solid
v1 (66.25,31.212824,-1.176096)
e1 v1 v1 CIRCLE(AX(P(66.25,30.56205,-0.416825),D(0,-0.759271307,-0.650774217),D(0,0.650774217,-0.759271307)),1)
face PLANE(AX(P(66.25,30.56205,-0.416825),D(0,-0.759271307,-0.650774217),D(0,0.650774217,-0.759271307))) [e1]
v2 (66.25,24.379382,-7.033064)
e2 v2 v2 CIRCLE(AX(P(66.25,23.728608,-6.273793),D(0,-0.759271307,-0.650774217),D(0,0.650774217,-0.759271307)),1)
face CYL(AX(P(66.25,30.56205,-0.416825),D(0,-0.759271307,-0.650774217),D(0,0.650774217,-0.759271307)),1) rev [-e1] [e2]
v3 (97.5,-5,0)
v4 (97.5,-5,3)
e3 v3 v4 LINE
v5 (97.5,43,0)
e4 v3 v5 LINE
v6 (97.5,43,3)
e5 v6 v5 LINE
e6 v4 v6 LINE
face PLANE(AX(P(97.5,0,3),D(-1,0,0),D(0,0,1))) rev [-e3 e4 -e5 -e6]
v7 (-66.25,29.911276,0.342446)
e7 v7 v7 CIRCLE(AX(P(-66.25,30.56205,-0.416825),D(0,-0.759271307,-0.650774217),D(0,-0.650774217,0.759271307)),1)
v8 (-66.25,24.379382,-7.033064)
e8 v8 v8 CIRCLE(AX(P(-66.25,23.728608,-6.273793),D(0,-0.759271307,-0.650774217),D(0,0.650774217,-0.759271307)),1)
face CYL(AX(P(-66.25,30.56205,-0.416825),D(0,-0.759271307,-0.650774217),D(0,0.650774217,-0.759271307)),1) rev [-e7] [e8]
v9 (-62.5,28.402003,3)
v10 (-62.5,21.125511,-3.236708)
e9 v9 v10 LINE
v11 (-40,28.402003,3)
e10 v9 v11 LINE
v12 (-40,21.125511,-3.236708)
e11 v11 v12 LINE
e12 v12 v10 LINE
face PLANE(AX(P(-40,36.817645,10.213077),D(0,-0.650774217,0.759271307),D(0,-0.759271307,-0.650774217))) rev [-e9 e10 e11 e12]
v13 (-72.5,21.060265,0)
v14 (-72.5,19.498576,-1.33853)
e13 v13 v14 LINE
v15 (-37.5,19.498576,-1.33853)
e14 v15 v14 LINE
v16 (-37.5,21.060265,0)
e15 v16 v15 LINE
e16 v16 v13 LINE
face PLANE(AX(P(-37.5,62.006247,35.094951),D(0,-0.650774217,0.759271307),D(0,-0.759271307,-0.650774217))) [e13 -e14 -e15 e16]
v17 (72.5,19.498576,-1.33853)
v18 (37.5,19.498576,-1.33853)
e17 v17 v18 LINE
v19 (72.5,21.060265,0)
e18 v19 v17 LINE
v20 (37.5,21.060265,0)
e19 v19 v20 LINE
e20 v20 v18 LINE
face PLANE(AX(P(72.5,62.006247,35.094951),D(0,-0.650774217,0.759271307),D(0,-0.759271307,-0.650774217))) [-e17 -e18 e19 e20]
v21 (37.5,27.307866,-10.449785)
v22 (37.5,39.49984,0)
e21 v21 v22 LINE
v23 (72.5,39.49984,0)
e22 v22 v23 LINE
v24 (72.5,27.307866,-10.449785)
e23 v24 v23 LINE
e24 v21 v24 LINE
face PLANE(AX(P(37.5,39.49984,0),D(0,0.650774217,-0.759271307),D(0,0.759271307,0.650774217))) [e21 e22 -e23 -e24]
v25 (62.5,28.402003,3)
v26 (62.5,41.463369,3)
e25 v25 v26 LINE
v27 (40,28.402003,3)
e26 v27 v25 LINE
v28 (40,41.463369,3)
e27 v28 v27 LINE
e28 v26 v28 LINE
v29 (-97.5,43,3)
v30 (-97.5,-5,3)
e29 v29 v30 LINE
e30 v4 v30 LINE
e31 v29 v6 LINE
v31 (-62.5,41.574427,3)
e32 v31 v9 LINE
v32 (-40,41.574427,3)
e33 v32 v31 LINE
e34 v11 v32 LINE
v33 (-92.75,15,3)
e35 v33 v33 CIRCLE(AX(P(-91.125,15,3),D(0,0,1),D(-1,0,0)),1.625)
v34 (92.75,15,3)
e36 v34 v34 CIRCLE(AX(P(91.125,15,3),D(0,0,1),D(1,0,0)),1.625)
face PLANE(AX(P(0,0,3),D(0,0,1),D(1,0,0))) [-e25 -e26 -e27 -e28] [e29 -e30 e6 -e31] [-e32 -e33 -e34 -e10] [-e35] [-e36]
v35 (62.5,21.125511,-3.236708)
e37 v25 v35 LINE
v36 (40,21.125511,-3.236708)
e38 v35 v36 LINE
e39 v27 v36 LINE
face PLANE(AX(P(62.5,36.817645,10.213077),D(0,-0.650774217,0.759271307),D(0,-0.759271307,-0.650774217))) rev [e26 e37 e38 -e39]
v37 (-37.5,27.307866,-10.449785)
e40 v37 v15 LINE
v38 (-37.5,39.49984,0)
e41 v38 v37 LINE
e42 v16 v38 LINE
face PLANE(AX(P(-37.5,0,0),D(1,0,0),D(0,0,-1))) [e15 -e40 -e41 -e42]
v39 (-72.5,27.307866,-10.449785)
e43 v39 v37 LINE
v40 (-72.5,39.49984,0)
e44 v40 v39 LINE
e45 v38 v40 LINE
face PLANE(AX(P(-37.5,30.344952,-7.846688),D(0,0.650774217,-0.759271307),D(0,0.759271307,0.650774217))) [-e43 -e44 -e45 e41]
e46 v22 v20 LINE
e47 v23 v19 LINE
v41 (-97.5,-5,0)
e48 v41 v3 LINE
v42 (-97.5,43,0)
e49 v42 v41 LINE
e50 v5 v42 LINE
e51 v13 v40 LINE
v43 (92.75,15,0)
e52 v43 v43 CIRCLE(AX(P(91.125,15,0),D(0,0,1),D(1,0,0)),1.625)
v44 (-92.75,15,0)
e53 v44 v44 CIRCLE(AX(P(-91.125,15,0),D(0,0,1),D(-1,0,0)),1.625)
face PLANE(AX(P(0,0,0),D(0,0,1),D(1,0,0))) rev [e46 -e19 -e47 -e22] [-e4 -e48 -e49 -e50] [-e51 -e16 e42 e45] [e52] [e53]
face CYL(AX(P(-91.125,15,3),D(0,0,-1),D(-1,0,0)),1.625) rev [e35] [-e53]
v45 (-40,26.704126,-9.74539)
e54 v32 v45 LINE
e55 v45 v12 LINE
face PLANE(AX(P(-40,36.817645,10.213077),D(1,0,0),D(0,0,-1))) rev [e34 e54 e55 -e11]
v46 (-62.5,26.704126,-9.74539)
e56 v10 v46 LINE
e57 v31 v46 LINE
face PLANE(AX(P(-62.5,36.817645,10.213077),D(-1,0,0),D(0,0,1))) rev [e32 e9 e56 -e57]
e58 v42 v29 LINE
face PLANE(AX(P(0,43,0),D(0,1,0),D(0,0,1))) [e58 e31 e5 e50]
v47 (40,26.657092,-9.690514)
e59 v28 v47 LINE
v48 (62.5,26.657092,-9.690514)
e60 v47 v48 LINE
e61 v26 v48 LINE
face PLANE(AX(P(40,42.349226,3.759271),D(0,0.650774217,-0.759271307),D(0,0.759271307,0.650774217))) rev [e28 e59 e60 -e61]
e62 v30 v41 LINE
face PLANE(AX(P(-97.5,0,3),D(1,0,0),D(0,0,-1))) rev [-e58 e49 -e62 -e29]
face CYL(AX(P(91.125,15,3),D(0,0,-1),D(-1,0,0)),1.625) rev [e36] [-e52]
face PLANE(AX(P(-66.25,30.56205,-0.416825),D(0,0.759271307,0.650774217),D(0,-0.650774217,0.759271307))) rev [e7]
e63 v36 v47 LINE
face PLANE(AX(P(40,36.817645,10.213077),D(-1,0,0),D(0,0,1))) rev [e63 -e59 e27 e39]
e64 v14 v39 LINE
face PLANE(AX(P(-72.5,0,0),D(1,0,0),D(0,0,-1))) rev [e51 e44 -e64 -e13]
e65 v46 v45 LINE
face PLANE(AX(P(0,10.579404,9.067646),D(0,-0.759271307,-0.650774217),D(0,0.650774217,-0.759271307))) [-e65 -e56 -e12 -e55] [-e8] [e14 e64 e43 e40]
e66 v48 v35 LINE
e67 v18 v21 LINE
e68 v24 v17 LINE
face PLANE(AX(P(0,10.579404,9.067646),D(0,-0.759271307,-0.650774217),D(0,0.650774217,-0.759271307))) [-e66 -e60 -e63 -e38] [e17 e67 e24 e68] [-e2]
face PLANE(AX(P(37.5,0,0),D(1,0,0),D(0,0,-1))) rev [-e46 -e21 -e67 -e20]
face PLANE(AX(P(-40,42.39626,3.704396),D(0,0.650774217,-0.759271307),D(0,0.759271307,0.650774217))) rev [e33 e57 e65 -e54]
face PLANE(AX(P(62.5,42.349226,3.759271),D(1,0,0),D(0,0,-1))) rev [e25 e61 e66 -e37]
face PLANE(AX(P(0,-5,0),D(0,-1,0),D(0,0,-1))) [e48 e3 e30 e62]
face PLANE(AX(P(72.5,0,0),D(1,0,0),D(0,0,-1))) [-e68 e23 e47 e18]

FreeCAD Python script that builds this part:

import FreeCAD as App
import Part
import Sketcher
Q = App.Units.Quantity


def add_polygon(sketch, points):
    """Adds a closed chain of lines whose ends are joined by coincident constraints."""
    first, n = sketch.GeometryCount, len(points)
    for a, b in zip(points, points[1:] + points[:1]):
        sketch.addGeometry(Part.LineSegment(App.Vector(*a, 0), App.Vector(*b, 0)), False)
    for i in range(n):
        sketch.addConstraint(Sketcher.Constraint("Coincident", first + i, 2, first + (i + 1) % n, 1))

doc = App.newDocument("Part")
body = doc.addObject("PartDesign::Body", "Body")

# Sketch on XY plane
sketch1 = body.newObject("Sketcher::SketchObject", "Sketch")
sketch1.AttachmentSupport = (doc.getObject("XY_Plane"), [""])
sketch1.MapMode = "FlatFace"
add_polygon(sketch1, [(-97.5, 38), (-97.5, 0), (97.5, 0), (97.5, 38)])  # lines 0-3
sketch1.addGeometry(Part.Circle(App.Vector(-91.125, 15, 0), App.Vector(0, 0, 1), 1.625), False)  # 4
sketch1.addGeometry(Part.Circle(App.Vector(91.125, 15, 0), App.Vector(0, 0, 1), 1.625), False)  # 5
sketch1.addConstraint([
    Sketcher.Constraint("Vertical", 0),
    Sketcher.Constraint("Horizontal", 1),
    Sketcher.Constraint("Vertical", 2),
    Sketcher.Constraint("Horizontal", 3),
    Sketcher.Constraint("Equal", 4, 5),
    Sketcher.Constraint("Symmetric", 0, 2, 1, 2, -1, 1),
    Sketcher.Constraint("Symmetric", 4, 3, 5, 3, -2),
    Sketcher.Constraint("Diameter", 4, 3.25),
    Sketcher.Constraint("DistanceX", 1, 1, 1, 2, 195.0),
    Sketcher.Constraint("DistanceY", 0, 2, 0, 1, 38.0),
    Sketcher.Constraint("DistanceY", -1, 1, 4, 3, 15.0),
    Sketcher.Constraint("DistanceX", 4, 3, 5, 3, 182.25),
])
pad1 = body.newObject("PartDesign::Pad", "Pad")
pad1.Profile = sketch1
pad1.Length = 3

# Sketch on XZ plane
sketch2 = body.newObject("Sketcher::SketchObject", "Sketch001")
sketch2.AttachmentSupport = (doc.getObject("XZ_Plane"), [""])
sketch2.MapMode = "FlatFace"
add_polygon(sketch2, [(-97.5, 3), (-97.5, 0), (97.5, 0), (97.5, 3)])  # lines 0-3
sketch2.addConstraint([
    Sketcher.Constraint("Vertical", 0),
    Sketcher.Constraint("Horizontal", 1),
    Sketcher.Constraint("Vertical", 2),
    Sketcher.Constraint("Horizontal", 3),
    Sketcher.Constraint("Symmetric", 0, 2, 1, 2, -1, 1),
    Sketcher.Constraint("DistanceX", 1, 1, 1, 2, 195.0),
    Sketcher.Constraint("DistanceY", 0, 2, 0, 1, 3.0),
])
pad2 = body.newObject("PartDesign::Pad", "Pad001")
pad2.Profile = sketch2
pad2.Length = 5

# Sketch on XZ plane
sketch3 = body.newObject("Sketcher::SketchObject", "Sketch002")
sketch3.AttachmentSupport = (doc.getObject("XZ_Plane"), [""])
sketch3.MapMode = "FlatFace"
sketch3.AttachmentOffset = App.Placement(App.Vector(0, 0, -38), App.Rotation())
add_polygon(sketch3, [(-97.5, 0), (-97.5, 3), (97.5, 3), (97.5, 0)])  # lines 0-3
sketch3.addConstraint([
    Sketcher.Constraint("Vertical", 0),
    Sketcher.Constraint("Horizontal", 1),
    Sketcher.Constraint("Vertical", 2),
    Sketcher.Constraint("Horizontal", 3),
    Sketcher.Constraint("Symmetric", 2, 2, 3, 2, -1, 1),
    Sketcher.Constraint("DistanceX", 1, 1, 1, 2, 195.0),
    Sketcher.Constraint("DistanceY", 0, 1, 0, 2, 3.0),
])
pad3 = body.newObject("PartDesign::Pad", "Pad002")
pad3.Profile = sketch3
pad3.Length = 5
pad3.Reversed = True

# Sketch on YZ plane
sketch4 = body.newObject("Sketcher::SketchObject", "Sketch003")
sketch4.AttachmentSupport = (doc.getObject("YZ_Plane"), [""])
sketch4.MapMode = "FlatFace"
sketch4.AttachmentOffset = App.Placement(App.Vector(0, 0, 72.5), App.Rotation())
add_polygon(sketch4, [(26.548595, -11.100559), (39.49984, 0), (17.034265, 0), (18.08853, -1.230032)])  # lines 0-3
sketch4.addConstraint([
    Sketcher.Constraint("Horizontal", 1),
    Sketcher.Constraint("PointOnObject", 0, 2, -1),
    Sketcher.Constraint("Perpendicular", 0, 2),
    Sketcher.Constraint("Parallel", 2, 3),
    Sketcher.Constraint("Distance", 3, 13.0),
    Sketcher.Constraint("Angle", 0, Q("40.6 deg")),
    Sketcher.Constraint("DistanceX", 1, 2, 1, 1, 22.465575),
    Sketcher.Constraint("DistanceX", -1, 1, 0, 2, 39.49984),
])
pad4 = body.newObject("PartDesign::Pad", "Pad003")
pad4.Profile = sketch4
pad4.Length = 35
pad4.Reversed = True

# Sketch on an angled plane
sketch5 = body.newObject("Sketcher::SketchObject", "Sketch004")
sketch5.Placement = App.Placement(App.Vector(0, 9.820133, 8.416872), App.Rotation(App.Vector(1, 0, 0), App.Vector(0, -0.650774217, 0.759271307), App.Vector(0, -0.759271307, -0.650774217), "ZXY"))
add_polygon(sketch5, [(40, -16.205477), (40, -24.705477), (62.5, -24.705477), (62.5, -16.205477)])  # lines 0-3
sketch5.addConstraint([
    Sketcher.Constraint("Vertical", 0),
    Sketcher.Constraint("Horizontal", 1),
    Sketcher.Constraint("Vertical", 2),
    Sketcher.Constraint("Horizontal", 3),
    Sketcher.Constraint("DistanceX", 1, 1, 1, 2, 22.5),
    Sketcher.Constraint("DistanceY", 0, 2, 0, 1, 8.5),
    Sketcher.Constraint("DistanceX", -1, 1, 0, 2, 40.0),
    Sketcher.Constraint("DistanceY", 0, 2, -1, 1, 24.705477),
])
pocket1 = body.newObject("PartDesign::Pocket", "Pocket")
pocket1.Profile = sketch5
pocket1.Type = "ThroughAll"
pocket1.Midplane = True

# Sketch on YZ plane
sketch6 = body.newObject("Sketcher::SketchObject", "Sketch005")
sketch6.AttachmentSupport = (doc.getObject("YZ_Plane"), [""])
sketch6.MapMode = "FlatFace"
sketch6.AttachmentOffset = App.Placement(App.Vector(0, 0, 72.5), App.Rotation())
add_polygon(sketch6, [(17.034265, 0), (26.548595, -11.100559), (30.344952, -7.846688), (23.619526, 0)])  # lines 0-3
sketch6.addConstraint([
    Sketcher.Constraint("Horizontal", 3),
    Sketcher.Constraint("PointOnObject", 2, 2, -1),
    Sketcher.Constraint("Perpendicular", 0, 1),
    Sketcher.Constraint("Perpendicular", 1, 2),
    Sketcher.Constraint("Distance", 1, 5.0),
    Sketcher.Constraint("Angle", 0, Q("-49.4 deg")),
    Sketcher.Constraint("Distance", 2, 10.334499),
    Sketcher.Constraint("DistanceX", -1, 1, 1, 2, 30.344952),
])
pocket2 = body.newObject("PartDesign::Pocket", "Pocket001")
pocket2.Profile = sketch6
pocket2.Length = 35

# Sketch on an angled plane
sketch7 = body.newObject("Sketcher::SketchObject", "Sketch006")
sketch7.Placement = App.Placement(App.Vector(0, 13.61649, 11.670743), App.Rotation(App.Vector(1, 0, 0), App.Vector(0, -0.650774217, 0.759271307), App.Vector(0, -0.759271307, -0.650774217), "ZXY"))
sketch7.addGeometry(Part.Circle(App.Vector(66.25, -20.205477, 0), App.Vector(0, 0, 1), 1), False)
sketch7.addConstraint([
    Sketcher.Constraint("Diameter", 0, 2.0),
    Sketcher.Constraint("DistanceX", -1, 1, 0, 3, 66.25),
    Sketcher.Constraint("DistanceY", 0, 3, -1, 1, 20.205477),
])
pocket3 = body.newObject("PartDesign::Pocket", "Pocket002")
pocket3.Profile = sketch7
pocket3.Length = 5

# Sketch on YZ plane
sketch8 = body.newObject("Sketcher::SketchObject", "Sketch007")
sketch8.AttachmentSupport = (doc.getObject("YZ_Plane"), [""])
sketch8.MapMode = "FlatFace"
sketch8.AttachmentOffset = App.Placement(App.Vector(0, 0, -72.5), App.Rotation())
add_polygon(sketch8, [(30.344952, -7.846688), (23.619526, 0), (39.49984, 0)])  # lines 0-2
sketch8.addConstraint([
    Sketcher.Constraint("Horizontal", 1),
    Sketcher.Constraint("PointOnObject", 0, 2, -1),
    Sketcher.Constraint("Perpendicular", 0, 2),
    Sketcher.Constraint("Angle", 0, Q("130.6 deg")),
    Sketcher.Constraint("Distance", 0, 10.334499),
    Sketcher.Constraint("DistanceX", -1, 1, 1, 2, 39.49984),
])
pad5 = body.newObject("PartDesign::Pad", "Pad004")
pad5.Profile = sketch8
pad5.Length = 35

# Sketch on an angled plane
sketch9 = body.newObject("Sketcher::SketchObject", "Sketch008")
sketch9.Placement = App.Placement(App.Vector(0, 13.61649, 11.670743), App.Rotation(App.Vector(1, 0, 0), App.Vector(0, -0.650774217, 0.759271307), App.Vector(0, -0.759271307, -0.650774217), "ZXY"))
add_polygon(sketch9, [(-62.5, -16.205477), (-62.5, -24.777751), (-40, -24.777751), (-40, -16.205477)])  # lines 0-3
sketch9.addConstraint([
    Sketcher.Constraint("Vertical", 0),
    Sketcher.Constraint("Horizontal", 1),
    Sketcher.Constraint("Vertical", 2),
    Sketcher.Constraint("Horizontal", 3),
    Sketcher.Constraint("DistanceX", 1, 1, 1, 2, 22.5),
    Sketcher.Constraint("DistanceX", 1, 2, -1, 1, 40.0),
    Sketcher.Constraint("DistanceY", 0, 2, 0, 1, 8.572274),
    Sketcher.Constraint("DistanceY", 0, 2, -1, 1, 24.777751),
])
pocket4 = body.newObject("PartDesign::Pocket", "Pocket003")
pocket4.Profile = sketch9
pocket4.Type = "ThroughAll"
pocket4.Midplane = True

# Sketch on an angled plane
sketch10 = body.newObject("Sketcher::SketchObject", "Sketch009")
sketch10.Placement = App.Placement(App.Vector(0, 13.61649, 11.670743), App.Rotation(App.Vector(1, 0, 0), App.Vector(0, -0.650774217, 0.759271307), App.Vector(0, -0.759271307, -0.650774217), "ZXY"))
sketch10.addGeometry(Part.Circle(App.Vector(-66.25, -20.205477, 0), App.Vector(0, 0, 1), 1), False)
sketch10.addConstraint([
    Sketcher.Constraint("Diameter", 0, 2.0),
    Sketcher.Constraint("DistanceX", 0, 3, -1, 1, 66.25),
    Sketcher.Constraint("DistanceY", 0, 3, -1, 1, 20.205477),
])
pocket5 = body.newObject("PartDesign::Pocket", "Pocket004")
pocket5.Profile = sketch10
pocket5.Length = 5

# Sketch on an angled plane
sketch11 = body.newObject("Sketcher::SketchObject", "Sketch010")
sketch11.Placement = App.Placement(App.Vector(0, 13.61649, 11.670743), App.Rotation(App.Vector(1, 0, 0), App.Vector(0, -0.650774217, 0.759271307), App.Vector(0, -0.759271307, -0.650774217), "ZXY"))
add_polygon(sketch11, [(-72.5, -13.705477), (-72.5, -25.705477), (-37.5, -25.705477), (-37.5, -13.705477)])  # lines 0-3
sketch11.addGeometry(Part.Circle(App.Vector(-66.25, -20.205477, 0), App.Vector(0, 0, 1), 1), False)  # 4
add_polygon(sketch11, [(-40, -24.777751), (-62.5, -24.777751), (-62.5, -16.205477), (-40, -16.205477)])  # lines 5-8
add_polygon(sketch11, [(37.5, -13.705477), (37.5, -25.705477), (72.5, -25.705477), (72.5, -13.705477)])  # lines 9-12
add_polygon(sketch11, [(62.5, -24.705477), (40, -24.705477), (40, -16.205477), (62.5, -16.205477)])  # lines 13-16
sketch11.addGeometry(Part.Circle(App.Vector(66.25, -20.205477, 0), App.Vector(0, 0, 1), 1), False)  # 17
sketch11.addConstraint([
    Sketcher.Constraint("Vertical", 0),
    Sketcher.Constraint("Horizontal", 1),
    Sketcher.Constraint("Vertical", 2),
    Sketcher.Constraint("Horizontal", 3),
    Sketcher.Constraint("Horizontal", 5),
    Sketcher.Constraint("Vertical", 6),
    Sketcher.Constraint("Horizontal", 7),
    Sketcher.Constraint("Vertical", 8),
    Sketcher.Constraint("Vertical", 9),
    Sketcher.Constraint("Horizontal", 10),
    Sketcher.Constraint("Vertical", 11),
    Sketcher.Constraint("Horizontal", 12),
    Sketcher.Constraint("Horizontal", 13),
    Sketcher.Constraint("Vertical", 14),
    Sketcher.Constraint("Horizontal", 15),
    Sketcher.Constraint("Vertical", 16),
    Sketcher.Constraint("Equal", 4, 17),
    Sketcher.Constraint("Symmetric", 4, 3, 17, 3, -2),
    Sketcher.Constraint("Symmetric", 1, 2, 9, 2, -2),
    Sketcher.Constraint("Symmetric", 3, 2, 11, 2, -2),
    Sketcher.Constraint("Symmetric", 7, 2, 14, 2, -2),
    Sketcher.Constraint("Equal", 7, 13),
    Sketcher.Constraint("Diameter", 4, 2.0),
    Sketcher.Constraint("DistanceX", 1, 1, 1, 2, 35.0),
    Sketcher.Constraint("DistanceY", 0, 2, 0, 1, 12.0),
    Sketcher.Constraint("DistanceX", 5, 2, 5, 1, 22.5),
    Sketcher.Constraint("DistanceY", 14, 1, 14, 2, 8.5),
    Sketcher.Constraint("DistanceX", 7, 2, -1, 1, 40.0),
    Sketcher.Constraint("DistanceX", 0, 2, 5, 2, 10.0),
    Sketcher.Constraint("DistanceY", 4, 3, 6, 2, 4.0),
    Sketcher.Constraint("DistanceY", 9, 2, 13, 2, 1.0),
    Sketcher.Constraint("DistanceX", 4, 3, 17, 3, 132.5),
    Sketcher.Constraint("DistanceY", 6, 1, 6, 2, 8.572274),
    Sketcher.Constraint("DistanceY", 5, 2, -1, 1, 24.777751),
])
pad6 = body.newObject("PartDesign::Pad", "Pad005")
pad6.Profile = sketch11
pad6.Length = 4

doc.recompute()
